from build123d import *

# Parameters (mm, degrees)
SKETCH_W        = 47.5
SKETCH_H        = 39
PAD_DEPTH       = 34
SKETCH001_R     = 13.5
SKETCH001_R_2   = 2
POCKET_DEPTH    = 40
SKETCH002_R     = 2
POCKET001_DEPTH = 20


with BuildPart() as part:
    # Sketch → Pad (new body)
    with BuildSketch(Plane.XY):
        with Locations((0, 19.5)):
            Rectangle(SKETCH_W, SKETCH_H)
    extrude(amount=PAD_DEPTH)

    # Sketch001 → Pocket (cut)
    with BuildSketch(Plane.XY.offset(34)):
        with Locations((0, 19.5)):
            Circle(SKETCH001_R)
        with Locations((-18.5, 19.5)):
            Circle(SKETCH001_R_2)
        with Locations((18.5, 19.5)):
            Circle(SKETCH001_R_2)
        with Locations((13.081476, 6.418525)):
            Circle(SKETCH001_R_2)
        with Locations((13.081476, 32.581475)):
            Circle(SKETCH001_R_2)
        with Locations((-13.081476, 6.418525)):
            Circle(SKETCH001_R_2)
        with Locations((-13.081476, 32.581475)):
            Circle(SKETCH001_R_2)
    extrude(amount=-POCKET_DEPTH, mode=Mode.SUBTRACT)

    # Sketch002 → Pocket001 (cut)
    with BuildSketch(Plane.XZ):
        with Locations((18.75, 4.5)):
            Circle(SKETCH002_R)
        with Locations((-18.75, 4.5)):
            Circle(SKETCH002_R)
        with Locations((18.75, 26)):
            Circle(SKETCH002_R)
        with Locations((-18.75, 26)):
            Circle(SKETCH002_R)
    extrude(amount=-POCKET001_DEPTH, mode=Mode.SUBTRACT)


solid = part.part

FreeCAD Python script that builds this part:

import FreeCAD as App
import Part
import Sketcher
Q = App.Units.Quantity


def add_polygon(sketch, points):
    """Adds a closed chain of lines whose ends are joined by coincident constraints."""
    first, n = sketch.GeometryCount, len(points)
    for a, b in zip(points, points[1:] + points[:1]):
        sketch.addGeometry(Part.LineSegment(App.Vector(*a, 0), App.Vector(*b, 0)), False)
    for i in range(n):
        sketch.addConstraint(Sketcher.Constraint("Coincident", first + i, 2, first + (i + 1) % n, 1))

doc = App.newDocument("Part")
params = doc.addObject("Spreadsheet::Sheet", "Params")
for row, (alias, value) in enumerate([
    ("sketch1_height", "39 mm"),
    ("sketch1_width", "47.5 mm"),
    ("pad1_length", "34 mm"),
    ("sketch2_diameter", "27 mm"),
    ("sketch2_diameter2", "4 mm"),
    ("pocket1_length", "40 mm"),
    ("sketch3_diameter", "4 mm"),
    ("pocket2_length", "20 mm"),
], start=1):
    params.set(f"A{row}", alias)
    params.set(f"B{row}", "=" + value)
    params.setAlias(f"B{row}", alias)

body = doc.addObject("PartDesign::Body", "Body")

sketch1 = body.newObject("Sketcher::SketchObject", "Sketch")
sketch1.AttachmentSupport = (doc.getObject("XY_Plane"), [""])
sketch1.MapMode = "FlatFace"
add_polygon(sketch1, [(-24, 39), (-24, 0), (24, 0), (24, 39)])
sketch1.addConstraint([
    Sketcher.Constraint("Vertical", 0),
    Sketcher.Constraint("Horizontal", 1),
    Sketcher.Constraint("Vertical", 2),
    Sketcher.Constraint("Horizontal", 3),
    Sketcher.Constraint("Symmetric", 0, 2, 1, 2, -1, 1),
    Sketcher.Constraint("DistanceY", 0, 2, 0, 1, Q("39 mm")),
    Sketcher.Constraint("DistanceX", 1, 1, 1, 2, Q("47.5 mm")),
])
sketch1.setExpression("Constraints[9]", "Params.sketch1_height")
sketch1.setExpression("Constraints[10]", "Params.sketch1_width")
pad1 = body.newObject("PartDesign::Pad", "Pad")
pad1.Profile = sketch1
pad1.setExpression("Length", "Params.pad1_length")

sketch2 = body.newObject("Sketcher::SketchObject", "Sketch001")
sketch2.AttachmentSupport = (doc.getObject("XY_Plane"), [""])
sketch2.MapMode = "FlatFace"
sketch2.AttachmentOffset = App.Placement(App.Vector(0, 0, 34), App.Rotation())
sketch2.addGeometry([
    Part.Circle(App.Vector(0, 19.5, 0), App.Vector(0, 0, 1), 13.5),
    Part.Circle(App.Vector(-18.5, 19.5, 0), App.Vector(0, 0, 1), 2),
    Part.Circle(App.Vector(18.5, 19.5, 0), App.Vector(0, 0, 1), 2),
    Part.Circle(App.Vector(13.1, 6.4, 0), App.Vector(0, 0, 1), 2),
    Part.Circle(App.Vector(13.1, 32.6, 0), App.Vector(0, 0, 1), 2),
    Part.Circle(App.Vector(-13.1, 6.4, 0), App.Vector(0, 0, 1), 2),
    Part.Circle(App.Vector(-13.1, 32.6, 0), App.Vector(0, 0, 1), 2),
], False)
sketch2.addConstraint([
    Sketcher.Constraint("Equal", 1, 2),
    Sketcher.Constraint("Equal", 2, 3),
    Sketcher.Constraint("Equal", 3, 4),
    Sketcher.Constraint("Equal", 4, 5),
    Sketcher.Constraint("Equal", 5, 6),
    Sketcher.Constraint("Symmetric", 1, 3, 2, 3, -2),
    Sketcher.Constraint("Symmetric", 3, 3, 5, 3, -2),
    Sketcher.Constraint("Symmetric", 4, 3, 6, 3, -2),
    Sketcher.Constraint("PointOnObject", 0, 3, -2),
    Sketcher.Constraint("Horizontal", 0, 3, 1, 3),
    Sketcher.Constraint("Vertical", 3, 3, 4, 3),
    Sketcher.Constraint("Diameter", 0, Q("27 mm")),
    Sketcher.Constraint("Diameter", 1, Q("4 mm")),
    Sketcher.Constraint("DistanceX", 1, 3, 2, 3, Q("37 mm")),
    Sketcher.Constraint("DistanceY", -1, 1, 0, 3, Q("19.5 mm")),
    Sketcher.Constraint("DistanceY", 3, 3, 4, 3, Q("26.16295 mm")),
    Sketcher.Constraint("DistanceX", -1, 1, 3, 3, Q("13.081476 mm")),
    Sketcher.Constraint("DistanceY", -1, 1, 3, 3, Q("6.418525 mm")),
])
sketch2.setExpression("Constraints[11]", "Params.sketch2_diameter")
sketch2.setExpression("Constraints[12]", "Params.sketch2_diameter2")
pocket1 = body.newObject("PartDesign::Pocket", "Pocket")
pocket1.Profile = sketch2
pocket1.setExpression("Length", "Params.pocket1_length")

sketch3 = body.newObject("Sketcher::SketchObject", "Sketch002")
sketch3.AttachmentSupport = (doc.getObject("XZ_Plane"), [""])
sketch3.MapMode = "FlatFace"
sketch3.addGeometry([
    Part.Circle(App.Vector(18.8, 4.5, 0), App.Vector(0, 0, 1), 2),
    Part.Circle(App.Vector(-18.8, 4.5, 0), App.Vector(0, 0, 1), 2),
    Part.Circle(App.Vector(18.8, 26, 0), App.Vector(0, 0, 1), 2),
    Part.Circle(App.Vector(-18.8, 26, 0), App.Vector(0, 0, 1), 2),
], False)
sketch3.addConstraint([
    Sketcher.Constraint("Equal", 0, 1),
    Sketcher.Constraint("Equal", 1, 2),
    Sketcher.Constraint("Equal", 2, 3),
    Sketcher.Constraint("Symmetric", 0, 3, 1, 3, -2),
    Sketcher.Constraint("Symmetric", 2, 3, 3, 3, -2),
    Sketcher.Constraint("Vertical", 0, 3, 2, 3),
    Sketcher.Constraint("Diameter", 0, Q("4 mm")),
    Sketcher.Constraint("DistanceY", -1, 1, 2, 3, Q("26 mm")),
    Sketcher.Constraint("DistanceY", -1, 1, 0, 3, Q("4.5 mm")),
    Sketcher.Constraint("DistanceX", 1, 3, 0, 3, Q("37.5 mm")),
])
sketch3.setExpression("Constraints[6]", "Params.sketch3_diameter")
pocket2 = body.newObject("PartDesign::Pocket", "Pocket001")
pocket2.Profile = sketch3
pocket2.setExpression("Length", "Params.pocket2_length")

doc.recompute()
